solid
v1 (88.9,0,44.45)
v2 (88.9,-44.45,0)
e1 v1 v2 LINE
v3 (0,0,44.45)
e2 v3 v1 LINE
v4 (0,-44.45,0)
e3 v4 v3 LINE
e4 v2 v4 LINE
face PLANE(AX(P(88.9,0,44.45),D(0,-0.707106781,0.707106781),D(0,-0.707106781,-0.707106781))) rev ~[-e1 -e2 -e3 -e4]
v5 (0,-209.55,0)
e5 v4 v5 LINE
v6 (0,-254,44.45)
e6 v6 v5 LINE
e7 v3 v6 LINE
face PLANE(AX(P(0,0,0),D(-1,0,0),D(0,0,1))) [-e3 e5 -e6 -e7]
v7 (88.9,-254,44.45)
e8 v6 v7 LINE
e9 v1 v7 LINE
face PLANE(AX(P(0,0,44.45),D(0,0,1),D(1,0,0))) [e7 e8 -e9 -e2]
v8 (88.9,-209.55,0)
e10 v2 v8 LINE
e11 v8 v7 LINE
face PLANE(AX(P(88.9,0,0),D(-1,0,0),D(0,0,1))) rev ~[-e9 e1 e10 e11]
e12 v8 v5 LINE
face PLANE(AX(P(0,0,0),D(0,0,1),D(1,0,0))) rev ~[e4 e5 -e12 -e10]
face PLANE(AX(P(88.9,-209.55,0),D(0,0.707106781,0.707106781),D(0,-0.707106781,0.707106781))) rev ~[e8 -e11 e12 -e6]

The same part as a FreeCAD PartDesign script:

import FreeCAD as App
import Part
import Sketcher
Q = App.Units.Quantity

doc = App.newDocument("Part")
body = doc.addObject("PartDesign::Body", "Body")

# Sketch on XZ plane
sketch1 = body.newObject("Sketcher::SketchObject", "Sketch")
sketch1.AttachmentSupport = (doc.getObject("XZ_Plane"), [""])
sketch1.MapMode = "FlatFace"
sketch1.addGeometry(Part.LineSegment(App.Vector(0, 44, 0), App.Vector(0, 0, 0)), False)
sketch1.addGeometry(Part.LineSegment(App.Vector(0, 0, 0), App.Vector(89, 0, 0)), False)
sketch1.addGeometry(Part.LineSegment(App.Vector(89, 0, 0), App.Vector(89, 44, 0)), False)
sketch1.addGeometry(Part.LineSegment(App.Vector(89, 44, 0), App.Vector(0, 44, 0)), False)
sketch1.addConstraint(Sketcher.Constraint("Coincident", 0, 2, 1, 1))
sketch1.addConstraint(Sketcher.Constraint("Coincident", 1, 2, 2, 1))
sketch1.addConstraint(Sketcher.Constraint("Coincident", 2, 2, 3, 1))
sketch1.addConstraint(Sketcher.Constraint("Coincident", 3, 2, 0, 1))
sketch1.addConstraint(Sketcher.Constraint("Vertical", 0))
sketch1.addConstraint(Sketcher.Constraint("Horizontal", 1))
sketch1.addConstraint(Sketcher.Constraint("Vertical", 2))
sketch1.addConstraint(Sketcher.Constraint("Horizontal", 3))
sketch1.addConstraint(Sketcher.Constraint("Coincident", 0, 2, -1, 1))
sketch1.addConstraint(Sketcher.Constraint("DistanceX", 1, 1, 1, 2, Q("3.5 in")))
sketch1.addConstraint(Sketcher.Constraint("DistanceY", 0, 2, 0, 1, Q("1.75 in")))
pad1 = body.newObject("PartDesign::Pad", "Pad")
pad1.Profile = sketch1
pad1.Length = Q("10 in")

# Sketch on YZ plane
sketch2 = body.newObject("Sketcher::SketchObject", "Sketch001")
sketch2.AttachmentSupport = (doc.getObject("YZ_Plane"), [""])
sketch2.MapMode = "FlatFace"
sketch2.AttachmentOffset = App.Placement(App.Vector(0, 0, 3.5 * 25.4), App.Rotation())
sketch2.addGeometry(Part.LineSegment(App.Vector(-210, 0, 0), App.Vector(-254, 44, 0)), False)
sketch2.addGeometry(Part.LineSegment(App.Vector(-254, 44, 0), App.Vector(-254, 0, 0)), False)
sketch2.addGeometry(Part.LineSegment(App.Vector(-254, 0, 0), App.Vector(-210, 0, 0)), False)
sketch2.addGeometry(Part.LineSegment(App.Vector(0, 0, 0), App.Vector(0, 44, 0)), False)
sketch2.addGeometry(Part.LineSegment(App.Vector(0, 44, 0), App.Vector(-44, 0, 0)), False)
sketch2.addGeometry(Part.LineSegment(App.Vector(-44, 0, 0), App.Vector(0, 0, 0)), False)
sketch2.addConstraint(Sketcher.Constraint("Coincident", 0, 2, 1, 1))
sketch2.addConstraint(Sketcher.Constraint("Coincident", 1, 2, 2, 1))
sketch2.addConstraint(Sketcher.Constraint("Coincident", 2, 2, 0, 1))
sketch2.addConstraint(Sketcher.Constraint("Coincident", 3, 2, 4, 1))
sketch2.addConstraint(Sketcher.Constraint("Coincident", 4, 2, 5, 1))
sketch2.addConstraint(Sketcher.Constraint("Coincident", 5, 2, 3, 1))
sketch2.addConstraint(Sketcher.Constraint("Vertical", 1))
sketch2.addConstraint(Sketcher.Constraint("Horizontal", 2))
sketch2.addConstraint(Sketcher.Constraint("Vertical", 3))
sketch2.addConstraint(Sketcher.Constraint("Horizontal", 5))
sketch2.addConstraint(Sketcher.Constraint("Coincident", 5, 2, -1, 1))
sketch2.addConstraint(Sketcher.Constraint("PointOnObject", 1, 2, -1))
sketch2.addConstraint(Sketcher.Constraint("Perpendicular", 0, 4))
sketch2.addConstraint(Sketcher.Constraint("Horizontal", 0, 2, 3, 2))
sketch2.addConstraint(Sketcher.Constraint("Equal", 2, 5))
sketch2.addConstraint(Sketcher.Constraint("DistanceX", 0, 2, -1, 1, Q("10 in")))
sketch2.addConstraint(Sketcher.Constraint("DistanceX", 2, 1, 2, 2, Q("1.75 in")))
pocket1 = body.newObject("PartDesign::Pocket", "Pocket")
pocket1.Profile = sketch2
pocket1.Length = Q("4 in")

doc.recompute()
